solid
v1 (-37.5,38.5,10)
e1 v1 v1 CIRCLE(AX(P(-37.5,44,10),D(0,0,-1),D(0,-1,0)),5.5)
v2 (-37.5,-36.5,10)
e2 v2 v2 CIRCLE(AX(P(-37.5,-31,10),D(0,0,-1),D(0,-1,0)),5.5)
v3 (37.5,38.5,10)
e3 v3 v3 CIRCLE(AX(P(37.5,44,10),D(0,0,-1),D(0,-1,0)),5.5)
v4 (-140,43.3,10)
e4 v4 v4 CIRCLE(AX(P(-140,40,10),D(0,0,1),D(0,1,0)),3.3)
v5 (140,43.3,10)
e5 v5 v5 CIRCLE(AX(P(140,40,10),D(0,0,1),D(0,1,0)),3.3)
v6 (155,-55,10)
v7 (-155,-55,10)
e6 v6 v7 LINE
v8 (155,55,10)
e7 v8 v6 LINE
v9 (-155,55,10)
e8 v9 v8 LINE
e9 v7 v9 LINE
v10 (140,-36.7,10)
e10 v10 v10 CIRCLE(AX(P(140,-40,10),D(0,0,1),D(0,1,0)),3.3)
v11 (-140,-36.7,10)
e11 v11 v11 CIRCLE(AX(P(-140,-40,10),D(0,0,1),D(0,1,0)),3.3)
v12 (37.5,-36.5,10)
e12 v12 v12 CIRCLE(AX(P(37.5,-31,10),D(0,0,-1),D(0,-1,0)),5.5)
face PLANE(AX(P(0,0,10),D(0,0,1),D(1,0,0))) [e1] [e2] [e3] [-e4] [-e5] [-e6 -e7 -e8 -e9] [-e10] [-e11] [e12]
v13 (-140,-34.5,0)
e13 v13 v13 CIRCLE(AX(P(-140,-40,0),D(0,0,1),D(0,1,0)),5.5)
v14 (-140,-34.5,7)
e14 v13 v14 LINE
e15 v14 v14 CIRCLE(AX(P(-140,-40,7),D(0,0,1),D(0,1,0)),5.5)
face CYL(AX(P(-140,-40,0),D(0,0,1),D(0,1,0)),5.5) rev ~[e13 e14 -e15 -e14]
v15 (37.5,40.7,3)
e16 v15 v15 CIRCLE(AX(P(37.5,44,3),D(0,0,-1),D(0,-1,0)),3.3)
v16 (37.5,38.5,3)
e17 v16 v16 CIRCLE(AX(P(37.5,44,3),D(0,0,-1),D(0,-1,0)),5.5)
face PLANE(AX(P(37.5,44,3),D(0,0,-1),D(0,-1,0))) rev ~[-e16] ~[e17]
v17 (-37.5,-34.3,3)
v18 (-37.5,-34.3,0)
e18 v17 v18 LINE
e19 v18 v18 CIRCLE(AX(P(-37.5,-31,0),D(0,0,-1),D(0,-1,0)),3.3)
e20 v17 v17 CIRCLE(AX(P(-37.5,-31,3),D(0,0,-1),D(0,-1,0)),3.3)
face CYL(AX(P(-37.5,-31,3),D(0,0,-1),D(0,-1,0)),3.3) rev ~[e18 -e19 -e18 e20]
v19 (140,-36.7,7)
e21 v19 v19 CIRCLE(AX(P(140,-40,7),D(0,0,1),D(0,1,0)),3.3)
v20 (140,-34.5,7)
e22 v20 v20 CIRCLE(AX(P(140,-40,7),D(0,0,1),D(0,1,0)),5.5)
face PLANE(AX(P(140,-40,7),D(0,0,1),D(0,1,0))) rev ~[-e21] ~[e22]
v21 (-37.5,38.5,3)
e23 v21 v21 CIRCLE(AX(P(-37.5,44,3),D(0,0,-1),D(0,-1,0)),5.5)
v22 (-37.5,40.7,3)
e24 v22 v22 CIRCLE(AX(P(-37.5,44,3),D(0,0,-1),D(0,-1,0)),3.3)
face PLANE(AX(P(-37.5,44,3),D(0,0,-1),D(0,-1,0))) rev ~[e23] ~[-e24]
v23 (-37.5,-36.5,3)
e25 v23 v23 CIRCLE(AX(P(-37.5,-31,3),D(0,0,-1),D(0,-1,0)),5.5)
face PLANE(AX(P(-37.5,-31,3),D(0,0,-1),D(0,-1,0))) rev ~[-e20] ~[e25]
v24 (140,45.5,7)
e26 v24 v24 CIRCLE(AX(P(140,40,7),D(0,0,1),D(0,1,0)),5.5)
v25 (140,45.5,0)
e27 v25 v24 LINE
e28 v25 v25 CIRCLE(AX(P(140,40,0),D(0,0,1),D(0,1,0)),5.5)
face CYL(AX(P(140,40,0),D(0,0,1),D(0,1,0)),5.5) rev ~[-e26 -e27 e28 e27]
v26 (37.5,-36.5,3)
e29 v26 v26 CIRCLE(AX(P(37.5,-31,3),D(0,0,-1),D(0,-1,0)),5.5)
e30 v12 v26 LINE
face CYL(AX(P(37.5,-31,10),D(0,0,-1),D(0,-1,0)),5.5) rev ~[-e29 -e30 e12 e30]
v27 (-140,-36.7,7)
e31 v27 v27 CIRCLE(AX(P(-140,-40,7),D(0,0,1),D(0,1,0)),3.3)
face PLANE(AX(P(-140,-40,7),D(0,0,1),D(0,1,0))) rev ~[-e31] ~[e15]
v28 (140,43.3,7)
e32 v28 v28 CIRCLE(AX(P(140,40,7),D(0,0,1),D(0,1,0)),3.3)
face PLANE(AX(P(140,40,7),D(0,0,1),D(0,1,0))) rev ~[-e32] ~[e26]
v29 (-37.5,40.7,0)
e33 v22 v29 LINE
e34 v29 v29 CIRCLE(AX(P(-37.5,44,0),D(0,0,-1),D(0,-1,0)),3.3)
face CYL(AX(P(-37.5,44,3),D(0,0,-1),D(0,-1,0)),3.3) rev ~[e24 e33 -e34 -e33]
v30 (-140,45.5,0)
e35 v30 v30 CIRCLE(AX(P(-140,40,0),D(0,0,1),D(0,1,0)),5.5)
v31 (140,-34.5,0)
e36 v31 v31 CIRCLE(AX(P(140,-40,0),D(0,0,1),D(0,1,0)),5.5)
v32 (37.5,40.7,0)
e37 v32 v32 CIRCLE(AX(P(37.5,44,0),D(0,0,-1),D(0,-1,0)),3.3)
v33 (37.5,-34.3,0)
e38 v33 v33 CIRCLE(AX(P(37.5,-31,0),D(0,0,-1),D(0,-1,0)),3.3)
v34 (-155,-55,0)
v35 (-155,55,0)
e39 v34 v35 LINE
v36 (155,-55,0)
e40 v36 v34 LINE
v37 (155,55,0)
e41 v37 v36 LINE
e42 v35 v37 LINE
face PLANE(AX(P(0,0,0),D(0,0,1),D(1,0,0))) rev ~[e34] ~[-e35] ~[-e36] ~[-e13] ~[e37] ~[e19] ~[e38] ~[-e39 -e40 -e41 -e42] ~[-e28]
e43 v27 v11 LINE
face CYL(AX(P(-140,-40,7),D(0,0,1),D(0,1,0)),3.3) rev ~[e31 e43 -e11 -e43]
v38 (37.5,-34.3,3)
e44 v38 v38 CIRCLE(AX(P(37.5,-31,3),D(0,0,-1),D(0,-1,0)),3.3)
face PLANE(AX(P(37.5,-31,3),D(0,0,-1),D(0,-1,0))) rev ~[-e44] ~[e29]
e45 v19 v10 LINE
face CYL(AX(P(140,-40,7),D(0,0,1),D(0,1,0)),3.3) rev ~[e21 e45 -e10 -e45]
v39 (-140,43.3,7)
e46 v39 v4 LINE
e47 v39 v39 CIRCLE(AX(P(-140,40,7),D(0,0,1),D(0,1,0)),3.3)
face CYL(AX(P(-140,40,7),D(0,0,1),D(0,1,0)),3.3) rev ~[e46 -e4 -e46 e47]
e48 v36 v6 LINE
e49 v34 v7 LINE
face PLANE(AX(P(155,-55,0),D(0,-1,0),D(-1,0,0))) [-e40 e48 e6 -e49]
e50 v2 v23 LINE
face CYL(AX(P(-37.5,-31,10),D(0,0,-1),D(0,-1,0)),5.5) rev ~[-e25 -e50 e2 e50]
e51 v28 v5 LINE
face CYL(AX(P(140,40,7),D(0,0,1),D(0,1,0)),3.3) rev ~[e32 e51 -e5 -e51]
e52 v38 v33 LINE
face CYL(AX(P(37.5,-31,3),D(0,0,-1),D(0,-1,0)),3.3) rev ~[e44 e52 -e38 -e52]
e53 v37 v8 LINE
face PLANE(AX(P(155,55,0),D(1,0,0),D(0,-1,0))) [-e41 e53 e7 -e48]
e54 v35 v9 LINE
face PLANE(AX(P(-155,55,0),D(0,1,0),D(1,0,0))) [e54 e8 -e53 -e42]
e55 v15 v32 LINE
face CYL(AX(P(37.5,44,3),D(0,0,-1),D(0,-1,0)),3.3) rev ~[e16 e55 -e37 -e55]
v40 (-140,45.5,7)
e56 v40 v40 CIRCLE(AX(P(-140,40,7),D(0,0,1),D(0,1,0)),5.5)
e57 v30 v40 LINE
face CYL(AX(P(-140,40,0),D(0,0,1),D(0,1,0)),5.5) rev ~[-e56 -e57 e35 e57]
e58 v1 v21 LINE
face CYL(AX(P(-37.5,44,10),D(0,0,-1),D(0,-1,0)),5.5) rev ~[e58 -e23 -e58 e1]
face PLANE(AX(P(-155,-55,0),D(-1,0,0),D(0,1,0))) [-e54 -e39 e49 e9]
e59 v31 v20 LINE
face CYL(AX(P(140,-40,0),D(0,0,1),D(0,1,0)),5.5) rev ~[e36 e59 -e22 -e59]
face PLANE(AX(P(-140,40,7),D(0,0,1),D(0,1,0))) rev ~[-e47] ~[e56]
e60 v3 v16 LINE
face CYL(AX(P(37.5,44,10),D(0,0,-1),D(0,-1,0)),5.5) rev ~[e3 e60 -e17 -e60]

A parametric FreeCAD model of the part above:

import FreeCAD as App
import Part
import Sketcher
Q = App.Units.Quantity


def add_polygon(sketch, points):
    """Adds a closed chain of lines whose ends are joined by coincident constraints."""
    first, n = sketch.GeometryCount, len(points)
    for a, b in zip(points, points[1:] + points[:1]):
        sketch.addGeometry(Part.LineSegment(App.Vector(*a, 0), App.Vector(*b, 0)), False)
    for i in range(n):
        sketch.addConstraint(Sketcher.Constraint("Coincident", first + i, 2, first + (i + 1) % n, 1))

doc = App.newDocument("Part")
body = doc.addObject("PartDesign::Body", "Body")

# Sketch on XY plane
sketch1 = body.newObject("Sketcher::SketchObject", "Sketch")
sketch1.AttachmentSupport = (doc.getObject("XY_Plane"), [""])
sketch1.MapMode = "FlatFace"
add_polygon(sketch1, [(155, 55), (-155, 55), (-155, -55), (155, -55)])  # lines 0-3
sketch1.addConstraint([
    Sketcher.Constraint("Horizontal", 0),
    Sketcher.Constraint("Vertical", 1),
    Sketcher.Constraint("Horizontal", 2),
    Sketcher.Constraint("Vertical", 3),
    Sketcher.Constraint("Symmetric", 0, 2, 2, 2, -1, 1),
    Sketcher.Constraint("DistanceX", 0, 2, 0, 1, Q("310 mm")),
    Sketcher.Constraint("DistanceY", 1, 2, 1, 1, Q("110 mm")),
])
pad1 = body.newObject("PartDesign::Pad", "Pad")
pad1.Profile = sketch1
pad1.Length = 10

# Sketch on XY plane
sketch2 = body.newObject("Sketcher::SketchObject", "Sketch001")
sketch2.AttachmentSupport = (doc.getObject("XY_Plane"), [""])
sketch2.MapMode = "FlatFace"
sketch2.AttachmentOffset = App.Placement(App.Vector(0, 0, 10), App.Rotation())
sketch2.addGeometry([
    Part.Circle(App.Vector(-37.5, 44, 0), App.Vector(0, 0, 1), 3.3),
    Part.Circle(App.Vector(37.5, 44, 0), App.Vector(0, 0, 1), 3.3),
    Part.Circle(App.Vector(-37.5, -31, 0), App.Vector(0, 0, 1), 3.3),
    Part.Circle(App.Vector(37.5, -31, 0), App.Vector(0, 0, 1), 3.3),
], False)
sketch2.addConstraint([
    Sketcher.Constraint("Equal", 0, 1),
    Sketcher.Constraint("Equal", 1, 2),
    Sketcher.Constraint("Equal", 2, 3),
    Sketcher.Constraint("Symmetric", 0, 3, 1, 3, -2),
    Sketcher.Constraint("Symmetric", 2, 3, 3, 3, -2),
    Sketcher.Constraint("Vertical", 0, 3, 2, 3),
    Sketcher.Constraint("Diameter", 0, Q("6.6 mm")),
    Sketcher.Constraint("DistanceY", -1, 1, 0, 3, Q("44 mm")),
    Sketcher.Constraint("DistanceY", 2, 3, -1, 1, Q("31 mm")),
    Sketcher.Constraint("DistanceX", 0, 3, 1, 3, Q("75 mm")),
])
doc.recompute()
hole = body.newObject("PartDesign::Hole", "Hole")
hole.Profile = sketch2
hole.ThreadType = "None"
hole.Diameter = 6.6
hole.DepthType = "ThroughAll"
hole.HoleCutType = "Counterbore"
hole.HoleCutDiameter = 11
hole.HoleCutDepth = 7

# Sketch on XY plane
sketch3 = body.newObject("Sketcher::SketchObject", "Sketch002")
sketch3.AttachmentSupport = (doc.getObject("XY_Plane"), [""])
sketch3.MapMode = "FlatFace"
sketch3.addGeometry([
    Part.Circle(App.Vector(140, 40, 0), App.Vector(0, 0, 1), 3.3),
    Part.Circle(App.Vector(140, -40, 0), App.Vector(0, 0, 1), 3.3),
    Part.Circle(App.Vector(-140, 40, 0), App.Vector(0, 0, 1), 3.3),
    Part.Circle(App.Vector(-140, -40, 0), App.Vector(0, 0, 1), 3.3),
], False)
sketch3.addConstraint([
    Sketcher.Constraint("Equal", 0, 1),
    Sketcher.Constraint("Equal", 1, 2),
    Sketcher.Constraint("Equal", 2, 3),
    Sketcher.Constraint("Symmetric", 1, 3, 2, 3, -1, 1),
    Sketcher.Constraint("Symmetric", 0, 3, 3, 3, -1, 1),
    Sketcher.Constraint("Symmetric", 0, 3, 2, 3, -2),
    Sketcher.Constraint("Diameter", 0, Q("6.6 mm")),
    Sketcher.Constraint("DistanceX", -1, 1, 0, 3, Q("140 mm")),
    Sketcher.Constraint("DistanceY", -1, 1, 0, 3, Q("40 mm")),
])
doc.recompute()
hole2 = body.newObject("PartDesign::Hole", "Hole001")
hole2.Profile = sketch3
hole2.ThreadType = "None"
hole2.Diameter = 6.6
hole2.DepthType = "ThroughAll"
hole2.HoleCutType = "Counterbore"
hole2.HoleCutDiameter = 11
hole2.HoleCutDepth = 7
hole2.Reversed = True

doc.recompute()
